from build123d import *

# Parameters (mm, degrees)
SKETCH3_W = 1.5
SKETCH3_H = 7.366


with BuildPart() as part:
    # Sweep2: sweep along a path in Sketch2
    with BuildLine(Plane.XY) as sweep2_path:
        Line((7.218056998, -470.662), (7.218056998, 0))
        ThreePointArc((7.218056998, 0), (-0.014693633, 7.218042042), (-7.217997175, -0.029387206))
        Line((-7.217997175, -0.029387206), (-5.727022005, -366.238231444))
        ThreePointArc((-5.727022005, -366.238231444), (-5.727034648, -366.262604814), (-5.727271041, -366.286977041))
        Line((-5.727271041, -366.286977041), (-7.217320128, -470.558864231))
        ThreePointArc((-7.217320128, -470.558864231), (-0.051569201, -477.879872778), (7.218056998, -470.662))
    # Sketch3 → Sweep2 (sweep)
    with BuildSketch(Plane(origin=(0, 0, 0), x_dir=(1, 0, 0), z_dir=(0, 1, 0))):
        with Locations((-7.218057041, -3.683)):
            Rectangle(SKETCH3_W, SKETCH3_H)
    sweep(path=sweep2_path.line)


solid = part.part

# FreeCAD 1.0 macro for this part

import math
import FreeCAD as App
import Part
import Sketcher
Q = App.Units.Quantity


def add_polygon(sketch, points):
    """Adds a closed chain of lines whose ends are joined by coincident constraints."""
    first, n = sketch.GeometryCount, len(points)
    for a, b in zip(points, points[1:] + points[:1]):
        sketch.addGeometry(Part.LineSegment(App.Vector(*a, 0), App.Vector(*b, 0)), False)
    for i in range(n):
        sketch.addConstraint(Sketcher.Constraint("Coincident", first + i, 2, first + (i + 1) % n, 1))

doc = App.newDocument("Part")
body = doc.addObject("PartDesign::Body", "Body")

sketch1 = body.newObject("Sketcher::SketchObject", "Sketch")
sketch1.AttachmentSupport = (doc.getObject("XZ_Plane"), [""])
sketch1.MapMode = "FlatFace"
add_polygon(sketch1, [(-7.968057, 0), (-7.968057, 7.366), (-6.468057, 7.366), (-6.468057, 0)])
sketch1.addConstraint([
    Sketcher.Constraint("Vertical", 0),
    Sketcher.Constraint("Horizontal", 1),
    Sketcher.Constraint("Vertical", 2),
    Sketcher.Constraint("Horizontal", 3),
    Sketcher.Constraint("PointOnObject", 2, 2, -1),
    Sketcher.Constraint("DistanceY", 0, 1, 0, 2, Q("0.29 in")),
    Sketcher.Constraint("DistanceX", 1, 1, 1, 2, 1.5),
    Sketcher.Constraint("DistanceX", 0, 2, -1, 1, 7.968057),
])

sketch2 = body.newObject("Sketcher::SketchObject", "Sketch001")
sketch2.AttachmentSupport = (doc.getObject("XY_Plane"), [""])
sketch2.MapMode = "FlatFace"
sketch2.addGeometry([
    Part.LineSegment(App.Vector(7.218057, -470.662, 0), App.Vector(7.218057, 0, 0)),
    Part.ArcOfCircle(Part.Circle(App.Vector(0, 0, 0), App.Vector(0, 0, 1), 7.218057), math.radians(0), math.radians(180.233272)),
    Part.LineSegment(App.Vector(-7.217997, -0.029387, 0), App.Vector(-5.727022, -366.238231, 0)),
    Part.ArcOfCircle(Part.Circle(App.Vector(-8.381988, -366.249041, 0), App.Vector(0, 0, 1), 2.654988), math.radians(-0.818705), math.radians(0.233274)),
    Part.LineSegment(App.Vector(-5.727271, -366.286977, 0), App.Vector(-7.21732, -470.558864, 0)),
    Part.ArcOfCircle(Part.Circle(App.Vector(0, -470.662, 0), App.Vector(0, 0, 1), 7.218057), math.radians(179.181297), math.radians(360)),
], False)
sketch2.addConstraint([
    Sketcher.Constraint("Tangent", 0, 2, 1, 1),
    Sketcher.Constraint("Tangent", 1, 2, 2, 1),
    Sketcher.Constraint("Tangent", 2, 2, 3, 2),
    Sketcher.Constraint("Tangent", 3, 1, 4, 1),
    Sketcher.Constraint("Tangent", 4, 2, 5, 1),
    Sketcher.Constraint("Tangent", 5, 2, 0, 1),
    Sketcher.Constraint("Vertical", 0),
    Sketcher.Constraint("Coincident", 1, 3, -1, 1),
    Sketcher.Constraint("Equal", 1, 5),
    Sketcher.Constraint("DistanceY", 0, 1, 0, 2, Q("18.53 in")),
    Sketcher.Constraint("Radius", 3, 2.654988),
    Sketcher.Constraint("Radius", 1, 7.218057),
    Sketcher.Constraint("DistanceX", 1, 2, 2, 2, Q("0.0586998 in")),
    Sketcher.Constraint("Distance", 2, 366.211879),
])
doc.recompute()

additivepipe = body.newObject("PartDesign::AdditivePipe", "AdditivePipe")
additivepipe.Profile = sketch1
additivepipe.Spine = (sketch2, ["Edge1", "Edge2", "Edge3", "Edge4", "Edge5", "Edge6"])

doc.recompute()
